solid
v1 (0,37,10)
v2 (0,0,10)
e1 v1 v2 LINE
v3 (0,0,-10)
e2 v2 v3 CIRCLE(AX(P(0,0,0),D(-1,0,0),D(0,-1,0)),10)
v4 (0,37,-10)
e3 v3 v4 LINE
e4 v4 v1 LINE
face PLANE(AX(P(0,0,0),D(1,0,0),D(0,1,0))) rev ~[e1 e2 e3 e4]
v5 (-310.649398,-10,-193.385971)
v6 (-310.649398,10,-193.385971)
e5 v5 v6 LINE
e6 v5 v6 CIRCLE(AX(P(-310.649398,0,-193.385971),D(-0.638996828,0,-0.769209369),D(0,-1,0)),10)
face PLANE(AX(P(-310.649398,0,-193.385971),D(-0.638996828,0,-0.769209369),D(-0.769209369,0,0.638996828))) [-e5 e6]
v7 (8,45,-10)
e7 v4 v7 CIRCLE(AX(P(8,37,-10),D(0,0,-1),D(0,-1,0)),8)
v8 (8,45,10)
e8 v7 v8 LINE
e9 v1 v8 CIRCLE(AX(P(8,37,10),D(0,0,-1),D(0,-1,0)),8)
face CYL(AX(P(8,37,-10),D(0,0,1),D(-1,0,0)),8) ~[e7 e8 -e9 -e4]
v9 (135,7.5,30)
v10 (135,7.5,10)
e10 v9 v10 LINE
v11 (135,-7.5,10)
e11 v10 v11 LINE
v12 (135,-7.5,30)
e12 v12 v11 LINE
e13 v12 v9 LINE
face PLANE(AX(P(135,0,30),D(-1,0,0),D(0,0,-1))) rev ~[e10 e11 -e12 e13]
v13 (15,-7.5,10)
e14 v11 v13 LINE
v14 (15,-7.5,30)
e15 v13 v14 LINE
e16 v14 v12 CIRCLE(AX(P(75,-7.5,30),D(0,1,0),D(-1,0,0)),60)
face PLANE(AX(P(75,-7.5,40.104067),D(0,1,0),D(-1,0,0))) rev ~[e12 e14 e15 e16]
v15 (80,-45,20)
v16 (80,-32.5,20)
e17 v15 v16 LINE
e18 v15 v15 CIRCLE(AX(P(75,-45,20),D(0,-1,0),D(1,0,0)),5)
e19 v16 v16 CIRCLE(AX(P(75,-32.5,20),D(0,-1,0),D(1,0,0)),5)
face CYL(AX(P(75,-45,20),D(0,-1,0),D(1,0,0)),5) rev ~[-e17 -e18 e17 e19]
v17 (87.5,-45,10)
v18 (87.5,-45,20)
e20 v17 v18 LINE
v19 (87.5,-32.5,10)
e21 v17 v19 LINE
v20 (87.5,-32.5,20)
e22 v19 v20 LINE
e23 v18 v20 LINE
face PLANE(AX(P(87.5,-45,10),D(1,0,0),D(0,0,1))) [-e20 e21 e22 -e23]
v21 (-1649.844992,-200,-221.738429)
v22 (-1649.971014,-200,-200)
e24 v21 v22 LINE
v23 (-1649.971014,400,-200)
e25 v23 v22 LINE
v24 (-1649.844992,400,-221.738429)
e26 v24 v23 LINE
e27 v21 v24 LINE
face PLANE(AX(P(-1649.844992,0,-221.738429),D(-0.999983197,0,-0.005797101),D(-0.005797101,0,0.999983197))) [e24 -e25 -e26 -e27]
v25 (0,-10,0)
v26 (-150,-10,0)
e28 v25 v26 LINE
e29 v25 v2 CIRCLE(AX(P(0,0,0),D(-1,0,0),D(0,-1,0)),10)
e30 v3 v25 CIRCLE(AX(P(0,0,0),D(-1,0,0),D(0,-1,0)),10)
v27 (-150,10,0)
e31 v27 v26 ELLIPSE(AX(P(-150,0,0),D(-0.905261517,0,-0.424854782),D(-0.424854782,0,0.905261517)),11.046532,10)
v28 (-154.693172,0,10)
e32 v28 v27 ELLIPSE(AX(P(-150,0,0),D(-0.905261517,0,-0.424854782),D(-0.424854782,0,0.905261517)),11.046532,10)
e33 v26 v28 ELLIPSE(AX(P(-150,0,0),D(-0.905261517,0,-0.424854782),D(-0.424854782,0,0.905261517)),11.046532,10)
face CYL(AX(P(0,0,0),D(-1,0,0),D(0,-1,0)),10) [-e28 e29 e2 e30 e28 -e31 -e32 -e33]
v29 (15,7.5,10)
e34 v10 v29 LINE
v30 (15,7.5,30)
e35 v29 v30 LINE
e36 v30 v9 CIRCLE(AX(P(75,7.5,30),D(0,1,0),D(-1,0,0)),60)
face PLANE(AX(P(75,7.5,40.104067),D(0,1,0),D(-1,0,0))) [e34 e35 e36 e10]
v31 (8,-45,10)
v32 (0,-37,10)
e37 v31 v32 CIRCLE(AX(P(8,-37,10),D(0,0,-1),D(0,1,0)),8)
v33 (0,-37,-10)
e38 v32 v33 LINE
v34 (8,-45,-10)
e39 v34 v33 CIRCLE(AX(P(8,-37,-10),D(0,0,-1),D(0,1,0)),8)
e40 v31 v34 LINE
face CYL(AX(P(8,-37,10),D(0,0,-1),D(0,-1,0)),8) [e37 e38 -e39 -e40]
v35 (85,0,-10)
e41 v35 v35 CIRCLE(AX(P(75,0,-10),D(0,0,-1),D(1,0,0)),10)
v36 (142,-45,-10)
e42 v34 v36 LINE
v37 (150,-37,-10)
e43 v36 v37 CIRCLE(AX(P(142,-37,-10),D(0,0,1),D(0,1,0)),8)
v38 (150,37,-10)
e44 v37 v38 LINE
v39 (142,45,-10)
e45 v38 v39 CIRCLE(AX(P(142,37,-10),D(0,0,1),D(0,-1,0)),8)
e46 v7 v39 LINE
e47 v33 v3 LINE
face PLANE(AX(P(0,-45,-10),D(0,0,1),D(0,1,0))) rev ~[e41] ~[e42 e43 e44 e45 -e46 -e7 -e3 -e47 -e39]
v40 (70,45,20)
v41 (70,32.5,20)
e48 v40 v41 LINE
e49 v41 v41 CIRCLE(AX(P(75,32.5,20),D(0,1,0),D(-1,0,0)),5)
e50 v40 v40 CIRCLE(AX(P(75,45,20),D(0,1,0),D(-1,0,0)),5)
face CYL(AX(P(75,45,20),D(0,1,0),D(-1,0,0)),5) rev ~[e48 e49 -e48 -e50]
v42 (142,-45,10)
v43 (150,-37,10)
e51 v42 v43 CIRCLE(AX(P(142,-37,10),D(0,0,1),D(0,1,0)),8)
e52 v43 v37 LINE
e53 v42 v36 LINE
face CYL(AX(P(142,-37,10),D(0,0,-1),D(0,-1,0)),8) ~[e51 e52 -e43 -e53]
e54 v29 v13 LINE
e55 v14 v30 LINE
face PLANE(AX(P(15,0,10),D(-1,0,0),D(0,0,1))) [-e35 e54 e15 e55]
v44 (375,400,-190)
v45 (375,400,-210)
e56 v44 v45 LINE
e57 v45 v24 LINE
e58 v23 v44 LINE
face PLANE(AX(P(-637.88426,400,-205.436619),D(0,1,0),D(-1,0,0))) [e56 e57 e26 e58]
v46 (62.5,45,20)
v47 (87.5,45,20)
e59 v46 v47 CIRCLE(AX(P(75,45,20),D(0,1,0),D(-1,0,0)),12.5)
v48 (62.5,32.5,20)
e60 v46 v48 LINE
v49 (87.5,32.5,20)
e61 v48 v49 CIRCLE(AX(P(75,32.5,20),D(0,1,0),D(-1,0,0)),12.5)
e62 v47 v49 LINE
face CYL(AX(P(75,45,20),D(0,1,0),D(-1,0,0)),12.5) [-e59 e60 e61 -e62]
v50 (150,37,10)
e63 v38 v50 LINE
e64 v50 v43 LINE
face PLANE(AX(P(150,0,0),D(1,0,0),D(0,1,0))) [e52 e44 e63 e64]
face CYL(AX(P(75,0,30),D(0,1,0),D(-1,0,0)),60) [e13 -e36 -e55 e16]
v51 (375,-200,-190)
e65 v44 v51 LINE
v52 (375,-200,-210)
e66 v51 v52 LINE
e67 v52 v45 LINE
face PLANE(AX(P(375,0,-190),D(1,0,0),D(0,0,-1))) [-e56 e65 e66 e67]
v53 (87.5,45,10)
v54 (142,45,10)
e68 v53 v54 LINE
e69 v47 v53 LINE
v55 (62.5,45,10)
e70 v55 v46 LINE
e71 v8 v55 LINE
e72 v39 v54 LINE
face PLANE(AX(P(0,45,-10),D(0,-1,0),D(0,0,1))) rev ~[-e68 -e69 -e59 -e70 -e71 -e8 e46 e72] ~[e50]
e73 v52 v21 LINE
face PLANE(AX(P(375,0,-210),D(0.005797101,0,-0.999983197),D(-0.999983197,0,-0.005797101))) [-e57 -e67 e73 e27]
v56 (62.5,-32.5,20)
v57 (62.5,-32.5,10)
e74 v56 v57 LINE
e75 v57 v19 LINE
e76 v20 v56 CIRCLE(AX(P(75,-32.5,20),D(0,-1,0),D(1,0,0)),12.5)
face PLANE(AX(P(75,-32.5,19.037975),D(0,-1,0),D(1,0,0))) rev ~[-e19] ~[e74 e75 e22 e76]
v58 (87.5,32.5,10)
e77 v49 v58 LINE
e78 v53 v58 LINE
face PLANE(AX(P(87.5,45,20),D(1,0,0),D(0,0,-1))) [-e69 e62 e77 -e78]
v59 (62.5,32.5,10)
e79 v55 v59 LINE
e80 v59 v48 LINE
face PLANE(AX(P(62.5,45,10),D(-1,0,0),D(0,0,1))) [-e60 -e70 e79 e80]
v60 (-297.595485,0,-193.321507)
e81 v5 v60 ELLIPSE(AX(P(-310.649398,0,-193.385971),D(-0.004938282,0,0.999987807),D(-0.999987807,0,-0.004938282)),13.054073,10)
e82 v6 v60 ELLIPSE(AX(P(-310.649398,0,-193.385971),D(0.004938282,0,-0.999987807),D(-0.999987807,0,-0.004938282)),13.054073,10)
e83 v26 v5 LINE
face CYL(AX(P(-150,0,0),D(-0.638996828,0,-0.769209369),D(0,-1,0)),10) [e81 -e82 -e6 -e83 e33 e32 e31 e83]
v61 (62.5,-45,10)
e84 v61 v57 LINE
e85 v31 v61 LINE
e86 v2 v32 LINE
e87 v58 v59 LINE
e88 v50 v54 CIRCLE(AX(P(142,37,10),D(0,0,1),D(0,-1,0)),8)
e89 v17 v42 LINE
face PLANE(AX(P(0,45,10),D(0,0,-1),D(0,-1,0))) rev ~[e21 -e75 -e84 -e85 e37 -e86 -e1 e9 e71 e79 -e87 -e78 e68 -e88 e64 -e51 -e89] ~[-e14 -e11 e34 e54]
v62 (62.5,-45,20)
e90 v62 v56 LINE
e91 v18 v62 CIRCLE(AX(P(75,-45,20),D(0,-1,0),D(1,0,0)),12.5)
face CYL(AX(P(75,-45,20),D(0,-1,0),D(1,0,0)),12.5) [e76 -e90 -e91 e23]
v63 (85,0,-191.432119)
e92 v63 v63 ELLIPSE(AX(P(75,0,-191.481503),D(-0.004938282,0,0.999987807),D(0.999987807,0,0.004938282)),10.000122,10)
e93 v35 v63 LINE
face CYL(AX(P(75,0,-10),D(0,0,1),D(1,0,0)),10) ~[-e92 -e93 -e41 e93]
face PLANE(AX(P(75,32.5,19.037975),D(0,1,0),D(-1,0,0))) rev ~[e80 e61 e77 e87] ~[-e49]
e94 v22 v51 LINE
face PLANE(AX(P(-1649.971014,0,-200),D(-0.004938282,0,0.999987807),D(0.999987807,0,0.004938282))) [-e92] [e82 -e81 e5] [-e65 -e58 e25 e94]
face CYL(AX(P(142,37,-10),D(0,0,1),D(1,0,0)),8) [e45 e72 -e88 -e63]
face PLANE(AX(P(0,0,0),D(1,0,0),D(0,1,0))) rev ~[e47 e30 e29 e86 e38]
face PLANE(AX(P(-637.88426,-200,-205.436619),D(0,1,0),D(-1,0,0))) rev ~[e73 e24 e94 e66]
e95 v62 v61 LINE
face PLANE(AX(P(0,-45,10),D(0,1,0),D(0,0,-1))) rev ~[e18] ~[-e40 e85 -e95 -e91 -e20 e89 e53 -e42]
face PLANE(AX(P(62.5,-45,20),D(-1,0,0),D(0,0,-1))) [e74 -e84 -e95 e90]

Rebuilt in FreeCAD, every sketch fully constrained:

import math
import FreeCAD as App
import Part
import Sketcher


def edges_at(feature, points):
    """Names of the edges that pass closest to the given points."""
    edges = feature.Shape.Edges
    near = lambda p: min(range(len(edges)), key=lambda i: edges[i].distToShape(Part.Vertex(*p))[0])
    return sorted({f"Edge{near(p) + 1}" for p in points})

doc = App.newDocument("Part")
params = doc.addObject("Spreadsheet::Sheet", "Params")
for row, (alias, value) in enumerate([
    ("sketch1_width", "90 mm"),
    ("sketch1_height", "20 mm"),
    ("pad1_length", "150 mm"),
    ("sketch2_diameter", "10 mm"),
    ("sketch2_radius", "12.5 mm"),
    ("sketch2_height", "10 mm"),
    ("pad2_length", "12.5 mm"),
    ("sketch3_diameter", "10 mm"),
    ("sketch3_radius", "12.5 mm"),
    ("sketch3_height", "10 mm"),
    ("pad3_length", "12.5 mm"),
    ("sketch4_radius", "60 mm"),
    ("sketch4_height", "20 mm"),
    ("pad4_length", "7.5 mm"),
    ("pad4_length2", "7.5 mm"),
    ("sketch5_diameter", "20 mm"),
    ("sketch6_width", "150 mm"),
    ("sketch7_height", "20 mm"),
    ("pad5_length", "400 mm"),
    ("pad5_length2", "200 mm"),
    ("sketch8_diameter", "20 mm"),
    ("pad6_length", "190 mm"),
    ("fillet_radius", "8 mm"),
], start=1):
    params.set(f"A{row}", alias)
    params.set(f"B{row}", "=" + value)
    params.setAlias(f"B{row}", alias)

body = doc.addObject("PartDesign::Body", "Body")

# Sketch on YZ plane
sketch1 = doc.addObject("Sketcher::SketchObject", "Sketch")
body.addObject(sketch1)
sketch1.AttachmentSupport = (doc.YZ_Plane, [""])
sketch1.MapMode = "FlatFace"
sketch1.addGeometry(Part.LineSegment(App.Vector(45, 10, 0), App.Vector(-45, 10, 0)), False)
sketch1.addGeometry(Part.LineSegment(App.Vector(-45, 10, 0), App.Vector(-45, -10, 0)), False)
sketch1.addGeometry(Part.LineSegment(App.Vector(-45, -10, 0), App.Vector(45, -10, 0)), False)
sketch1.addGeometry(Part.LineSegment(App.Vector(45, -10, 0), App.Vector(45, 10, 0)), False)
sketch1.addConstraint(Sketcher.Constraint("Coincident", 0, 2, 1, 1))
sketch1.addConstraint(Sketcher.Constraint("Coincident", 1, 2, 2, 1))
sketch1.addConstraint(Sketcher.Constraint("Coincident", 2, 2, 3, 1))
sketch1.addConstraint(Sketcher.Constraint("Coincident", 3, 2, 0, 1))
sketch1.addConstraint(Sketcher.Constraint("Horizontal", 0))
sketch1.addConstraint(Sketcher.Constraint("Vertical", 1))
sketch1.addConstraint(Sketcher.Constraint("Horizontal", 2))
sketch1.addConstraint(Sketcher.Constraint("Vertical", 3))
sketch1.addConstraint(Sketcher.Constraint("Symmetric", 0, 2, 2, 2, -1, 1))
sketch1.addConstraint(Sketcher.Constraint("DistanceX", 0, 2, 0, 1, 90.0))
sketch1.addConstraint(Sketcher.Constraint("DistanceY", 1, 2, 1, 1, 20.0))
sketch1.setExpression("Constraints[9]", "Params.sketch1_width")
sketch1.setExpression("Constraints[10]", "Params.sketch1_height")
pad1 = doc.addObject("PartDesign::Pad", "Pad")
body.addObject(pad1)
pad1.Profile = sketch1
pad1.setExpression("Length", "Params.pad1_length")

# Sketch on XZ plane
sketch2 = doc.addObject("Sketcher::SketchObject", "Sketch001")
body.addObject(sketch2)
sketch2.AttachmentSupport = (doc.XZ_Plane, [""])
sketch2.MapMode = "FlatFace"
sketch2.AttachmentOffset = App.Placement(App.Vector(0, 0, 45), App.Rotation())
sketch2.addGeometry(Part.LineSegment(App.Vector(88, 10, 0), App.Vector(88, 20, 0)), False)
sketch2.addGeometry(Part.ArcOfCircle(Part.Circle(App.Vector(75, 20, 0), App.Vector(0, 0, 1), 12), math.radians(0), math.radians(180)), False)
sketch2.addGeometry(Part.LineSegment(App.Vector(62, 20, 0), App.Vector(62, 10, 0)), False)
sketch2.addGeometry(Part.LineSegment(App.Vector(62, 10, 0), App.Vector(88, 10, 0)), False)
sketch2.addGeometry(Part.Circle(App.Vector(75, 20, 0), App.Vector(0, 0, 1), 5), False)
sketch2.addConstraint(Sketcher.Constraint("Tangent", 0, 2, 1, 1))
sketch2.addConstraint(Sketcher.Constraint("Tangent", 1, 2, 2, 1))
sketch2.addConstraint(Sketcher.Constraint("Coincident", 2, 2, 3, 1))
sketch2.addConstraint(Sketcher.Constraint("Coincident", 3, 2, 0, 1))
sketch2.addConstraint(Sketcher.Constraint("Vertical", 0))
sketch2.addConstraint(Sketcher.Constraint("Vertical", 2))
sketch2.addConstraint(Sketcher.Constraint("Horizontal", 3))
sketch2.addConstraint(Sketcher.Constraint("Coincident", 4, 3, 1, 3))
sketch2.addConstraint(Sketcher.Constraint("Diameter", 4, 10.0))
sketch2.addConstraint(Sketcher.Constraint("Radius", 1, 12.5))
sketch2.addConstraint(Sketcher.Constraint("DistanceY", 0, 1, 0, 2, 10.0))
sketch2.addConstraint(Sketcher.Constraint("DistanceX", -1, 1, 1, 3, 75.0))
sketch2.addConstraint(Sketcher.Constraint("DistanceY", -1, 1, 1, 3, 20.0))
sketch2.setExpression("Constraints[8]", "Params.sketch2_diameter")
sketch2.setExpression("Constraints[9]", "Params.sketch2_radius")
sketch2.setExpression("Constraints[10]", "Params.sketch2_height")
pad2 = doc.addObject("PartDesign::Pad", "Pad001")
body.addObject(pad2)
pad2.Profile = sketch2
pad2.setExpression("Length", "Params.pad2_length")
pad2.Reversed = True

# Sketch on XZ plane
sketch3 = doc.addObject("Sketcher::SketchObject", "Sketch002")
body.addObject(sketch3)
sketch3.AttachmentSupport = (doc.XZ_Plane, [""])
sketch3.MapMode = "FlatFace"
sketch3.AttachmentOffset = App.Placement(App.Vector(0, 0, -45), App.Rotation())
sketch3.addGeometry(Part.LineSegment(App.Vector(62, 10, 0), App.Vector(62, 20, 0)), False)
sketch3.addGeometry(Part.ArcOfCircle(Part.Circle(App.Vector(75, 20, 0), App.Vector(0, 0, 1), 12), math.radians(0), math.radians(180)), False)
sketch3.addGeometry(Part.LineSegment(App.Vector(88, 20, 0), App.Vector(88, 10, 0)), False)
sketch3.addGeometry(Part.LineSegment(App.Vector(88, 10, 0), App.Vector(62, 10, 0)), False)
sketch3.addGeometry(Part.Circle(App.Vector(75, 20, 0), App.Vector(0, 0, 1), 5), False)
sketch3.addConstraint(Sketcher.Constraint("Tangent", 0, 2, 1, 2))
sketch3.addConstraint(Sketcher.Constraint("Tangent", 1, 1, 2, 1))
sketch3.addConstraint(Sketcher.Constraint("Coincident", 2, 2, 3, 1))
sketch3.addConstraint(Sketcher.Constraint("Coincident", 3, 2, 0, 1))
sketch3.addConstraint(Sketcher.Constraint("Vertical", 0))
sketch3.addConstraint(Sketcher.Constraint("Vertical", 2))
sketch3.addConstraint(Sketcher.Constraint("Horizontal", 3))
sketch3.addConstraint(Sketcher.Constraint("Coincident", 4, 3, 1, 3))
sketch3.addConstraint(Sketcher.Constraint("Diameter", 4, 10.0))
sketch3.addConstraint(Sketcher.Constraint("Radius", 1, 12.5))
sketch3.addConstraint(Sketcher.Constraint("DistanceY", 0, 1, 0, 2, 10.0))
sketch3.addConstraint(Sketcher.Constraint("DistanceX", -1, 1, 1, 3, 75.0))
sketch3.addConstraint(Sketcher.Constraint("DistanceY", -1, 1, 1, 3, 20.0))
sketch3.setExpression("Constraints[8]", "Params.sketch3_diameter")
sketch3.setExpression("Constraints[9]", "Params.sketch3_radius")
sketch3.setExpression("Constraints[10]", "Params.sketch3_height")
pad3 = doc.addObject("PartDesign::Pad", "Pad002")
body.addObject(pad3)
pad3.Profile = sketch3
pad3.setExpression("Length", "Params.pad3_length")

# Sketch on XZ plane
sketch4 = doc.addObject("Sketcher::SketchObject", "Sketch003")
body.addObject(sketch4)
sketch4.AttachmentSupport = (doc.XZ_Plane, [""])
sketch4.MapMode = "FlatFace"
sketch4.addGeometry(Part.LineSegment(App.Vector(15, 10, 0), App.Vector(15, 30, 0)), False)
sketch4.addGeometry(Part.ArcOfCircle(Part.Circle(App.Vector(75, 30, 0), App.Vector(0, 0, 1), 60), math.radians(0), math.radians(180)), False)
sketch4.addGeometry(Part.LineSegment(App.Vector(135, 30, 0), App.Vector(135, 10, 0)), False)
sketch4.addGeometry(Part.LineSegment(App.Vector(135, 10, 0), App.Vector(15, 10, 0)), False)
sketch4.addConstraint(Sketcher.Constraint("Tangent", 0, 2, 1, 2))
sketch4.addConstraint(Sketcher.Constraint("Tangent", 1, 1, 2, 1))
sketch4.addConstraint(Sketcher.Constraint("Coincident", 2, 2, 3, 1))
sketch4.addConstraint(Sketcher.Constraint("Coincident", 3, 2, 0, 1))
sketch4.addConstraint(Sketcher.Constraint("Vertical", 0))
sketch4.addConstraint(Sketcher.Constraint("Vertical", 2))
sketch4.addConstraint(Sketcher.Constraint("Horizontal", 3))
sketch4.addConstraint(Sketcher.Constraint("Radius", 1, 60.0))
sketch4.addConstraint(Sketcher.Constraint("DistanceY", 0, 1, 0, 2, 20.0))
sketch4.addConstraint(Sketcher.Constraint("DistanceX", -1, 1, 1, 3, 75.0))
sketch4.addConstraint(Sketcher.Constraint("DistanceY", -1, 1, 1, 3, 30.0))
sketch4.setExpression("Constraints[7]", "Params.sketch4_radius")
sketch4.setExpression("Constraints[8]", "Params.sketch4_height")
pad4 = doc.addObject("PartDesign::Pad", "Pad003")
body.addObject(pad4)
pad4.Profile = sketch4
pad4.Type = "TwoLengths"
pad4.setExpression("Length", "Params.pad4_length")
pad4.setExpression("Length2", "Params.pad4_length2")
pad4.Reversed = True

# Sketch on YZ plane
sketch5 = doc.addObject("Sketcher::SketchObject", "Sketch004")
body.addObject(sketch5)
sketch5.AttachmentSupport = (doc.YZ_Plane, [""])
sketch5.MapMode = "FlatFace"
sketch5.addGeometry(Part.Circle(App.Vector(0, 0, 0), App.Vector(0, 0, 1), 10), False)
sketch5.addConstraint(Sketcher.Constraint("Coincident", 0, 3, -1, 1))
sketch5.addConstraint(Sketcher.Constraint("Diameter", 0, 20.0))
sketch5.setExpression("Constraints[1]", "Params.sketch5_diameter")

# Sketch on XZ plane
sketch6 = doc.addObject("Sketcher::SketchObject", "Sketch005")
body.addObject(sketch6)
sketch6.AttachmentSupport = (doc.XZ_Plane, [""])
sketch6.MapMode = "FlatFace"
sketch6.addGeometry(Part.LineSegment(App.Vector(0, 0, 0), App.Vector(-150, 0, 0)), False)
sketch6.addGeometry(Part.LineSegment(App.Vector(-150, 0, 0), App.Vector(-311, -193, 0)), False)
sketch6.addConstraint(Sketcher.Constraint("Coincident", 0, 2, 1, 1))
sketch6.addConstraint(Sketcher.Constraint("Horizontal", 0))
sketch6.addConstraint(Sketcher.Constraint("Coincident", 0, 1, -1, 1))
sketch6.addConstraint(Sketcher.Constraint("DistanceX", 0, 2, 0, 1, 150.0))
sketch6.addConstraint(Sketcher.Constraint("DistanceX", 1, 2, -1, 1, 310.649398))
sketch6.addConstraint(Sketcher.Constraint("DistanceY", 1, 2, -1, 1, 193.385971))
sketch6.setExpression("Constraints[3]", "Params.sketch6_width")
doc.recompute()

additivepipe = doc.addObject("PartDesign::AdditivePipe", "AdditivePipe")
body.addObject(additivepipe)
additivepipe.Profile = sketch5
additivepipe.Spine = (sketch6, ["Edge1", "Edge2"])
additivepipe.Transition = "Right corner"

# Sketch on XZ plane
sketch7 = doc.addObject("Sketcher::SketchObject", "Sketch006")
body.addObject(sketch7)
sketch7.AttachmentSupport = (doc.XZ_Plane, [""])
sketch7.MapMode = "FlatFace"
sketch7.addGeometry(Part.LineSegment(App.Vector(375, -190, 0), App.Vector(375, -210, 0)), False)
sketch7.addGeometry(Part.LineSegment(App.Vector(375, -210, 0), App.Vector(-1650, -222, 0)), False)
sketch7.addGeometry(Part.LineSegment(App.Vector(-1650, -222, 0), App.Vector(-1650, -200, 0)), False)
sketch7.addGeometry(Part.LineSegment(App.Vector(-1650, -200, 0), App.Vector(375, -190, 0)), False)
sketch7.addConstraint(Sketcher.Constraint("Coincident", 0, 2, 1, 1))
sketch7.addConstraint(Sketcher.Constraint("Coincident", 1, 2, 2, 1))
sketch7.addConstraint(Sketcher.Constraint("Coincident", 2, 2, 3, 1))
sketch7.addConstraint(Sketcher.Constraint("Coincident", 3, 2, 0, 1))
sketch7.addConstraint(Sketcher.Constraint("Vertical", 0))
sketch7.addConstraint(Sketcher.Constraint("Perpendicular", 1, 2))
sketch7.addConstraint(Sketcher.Constraint("DistanceY", 0, 2, 0, 1, 20.0))
sketch7.addConstraint(Sketcher.Constraint("DistanceX", -1, 1, 0, 2, 375.0))
sketch7.addConstraint(Sketcher.Constraint("DistanceY", 0, 2, -1, 1, 210.0))
sketch7.addConstraint(Sketcher.Constraint("DistanceY", 2, 2, -1, 1, 200.0))
sketch7.addConstraint(Sketcher.Constraint("DistanceY", 1, 2, -1, 1, 221.738429))
sketch7.addConstraint(Sketcher.Constraint("Distance", 1, 2024.879017))
sketch7.setExpression("Constraints[6]", "Params.sketch7_height")
pad5 = doc.addObject("PartDesign::Pad", "Pad004")
body.addObject(pad5)
pad5.Profile = sketch7
pad5.Type = "TwoLengths"
pad5.setExpression("Length", "Params.pad5_length")
pad5.setExpression("Length2", "Params.pad5_length2")
pad5.Reversed = True

# Sketch on XY plane
sketch8 = doc.addObject("Sketcher::SketchObject", "Sketch007")
body.addObject(sketch8)
sketch8.AttachmentSupport = (doc.XY_Plane, [""])
sketch8.MapMode = "FlatFace"
sketch8.AttachmentOffset = App.Placement(App.Vector(0, 0, -10), App.Rotation())
sketch8.addGeometry(Part.Circle(App.Vector(75, 0, 0), App.Vector(0, 0, 1), 10), False)
sketch8.addConstraint(Sketcher.Constraint("PointOnObject", 0, 3, -1))
sketch8.addConstraint(Sketcher.Constraint("Diameter", 0, 20.0))
sketch8.addConstraint(Sketcher.Constraint("DistanceX", -1, 1, 0, 3, 75.0))
sketch8.setExpression("Constraints[1]", "Params.sketch8_diameter")
pad6 = doc.addObject("PartDesign::Pad", "Pad005")
body.addObject(pad6)
pad6.Profile = sketch8
pad6.setExpression("Length", "Params.pad6_length")
pad6.Reversed = True
doc.recompute()

fillet = doc.addObject("PartDesign::Fillet", "Fillet")
body.addObject(fillet)
fillet.Base = (pad6, edges_at(pad6, [
    (0, -45, 0),
    (150, -45, 0),
    (150, 45, 0),
    (0, 45, 0),
]))
fillet.setExpression("Radius", "Params.fillet_radius")

doc.recompute()
